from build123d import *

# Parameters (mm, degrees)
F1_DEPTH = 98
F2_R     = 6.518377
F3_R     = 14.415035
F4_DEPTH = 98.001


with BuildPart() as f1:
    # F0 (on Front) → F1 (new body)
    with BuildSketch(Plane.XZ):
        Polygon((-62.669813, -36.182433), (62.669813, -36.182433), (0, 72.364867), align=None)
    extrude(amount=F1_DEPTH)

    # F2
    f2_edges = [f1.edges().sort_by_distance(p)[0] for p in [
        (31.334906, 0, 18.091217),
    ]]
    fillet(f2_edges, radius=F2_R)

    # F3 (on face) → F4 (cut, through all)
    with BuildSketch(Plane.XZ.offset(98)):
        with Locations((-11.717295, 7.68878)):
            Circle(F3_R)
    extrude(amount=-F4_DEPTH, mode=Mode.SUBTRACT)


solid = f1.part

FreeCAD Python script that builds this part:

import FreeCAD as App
import Part
import Sketcher
from FreeCAD import Vector
Q = App.Units.Quantity


def edges_at(feature, points):
    """Names of the edges that pass closest to the given points."""
    edges = feature.Shape.Edges
    near = lambda p: min(range(len(edges)), key=lambda i: edges[i].distToShape(Part.Vertex(*p))[0])
    return sorted({f"Edge{near(p) + 1}" for p in points})

doc = App.newDocument("Part")
body = doc.addObject("PartDesign::Body", "Body")

sketch1 = body.newObject("Sketcher::SketchObject", "Sketch")
sketch1.AttachmentSupport = (doc.getObject("XZ_Plane"), [""])
sketch1.MapMode = "FlatFace"
sketch1.addGeometry([
    Part.LineSegment(Vector(-63, -36, 0), Vector(63, -36, 0)),
    Part.LineSegment(Vector(63, -36, 0), Vector(0, 72, 0)),
    Part.LineSegment(Vector(0, 72, 0), Vector(-63, -36, 0)),
], False)
sketch1.addConstraint([
    Sketcher.Constraint("Coincident", 0, 2, 1, 1),
    Sketcher.Constraint("Coincident", 1, 2, 2, 1),
    Sketcher.Constraint("Coincident", 2, 2, 0, 1),
    Sketcher.Constraint("Horizontal", 0),
    Sketcher.Constraint("PointOnObject", 1, 2, -2),
    Sketcher.Constraint("Equal", 1, 2),
    Sketcher.Constraint("Angle", 1, Q("120 deg")),
    Sketcher.Constraint("DistanceY", 0, 2, 1, 2, Q("108.5473 mm")),
    Sketcher.Constraint("DistanceY", 0, 2, -1, 1, Q("36.182433 mm")),
])
pad1 = body.newObject("PartDesign::Pad", "Pad")
pad1.Profile = sketch1
pad1.Length = 98
doc.recompute()

fillet = body.newObject("PartDesign::Fillet", "Fillet")
fillet.Base = (pad1, edges_at(pad1, [(31.335, 0, 18.091)]))
fillet.Radius = 6.518377

sketch2 = body.newObject("Sketcher::SketchObject", "Sketch001")
sketch2.AttachmentSupport = (doc.getObject("XZ_Plane"), [""])
sketch2.MapMode = "FlatFace"
sketch2.AttachmentOffset = App.Placement(Vector(0, 0, 98), App.Rotation())
sketch2.addGeometry(Part.Circle(Vector(-12, 8, 0), Vector(0, 0, 1), 14), False)
sketch2.addConstraint([
    Sketcher.Constraint("Diameter", 0, Q("28.83007 mm")),
    Sketcher.Constraint("DistanceY", -1, 1, 0, 3, Q("7.68878 mm")),
    Sketcher.Constraint("DistanceX", 0, 3, -1, 1, Q("11.717295 mm")),
])
pocket1 = body.newObject("PartDesign::Pocket", "Pocket")
pocket1.Profile = sketch2
pocket1.Type = "ThroughAll"

doc.recompute()
